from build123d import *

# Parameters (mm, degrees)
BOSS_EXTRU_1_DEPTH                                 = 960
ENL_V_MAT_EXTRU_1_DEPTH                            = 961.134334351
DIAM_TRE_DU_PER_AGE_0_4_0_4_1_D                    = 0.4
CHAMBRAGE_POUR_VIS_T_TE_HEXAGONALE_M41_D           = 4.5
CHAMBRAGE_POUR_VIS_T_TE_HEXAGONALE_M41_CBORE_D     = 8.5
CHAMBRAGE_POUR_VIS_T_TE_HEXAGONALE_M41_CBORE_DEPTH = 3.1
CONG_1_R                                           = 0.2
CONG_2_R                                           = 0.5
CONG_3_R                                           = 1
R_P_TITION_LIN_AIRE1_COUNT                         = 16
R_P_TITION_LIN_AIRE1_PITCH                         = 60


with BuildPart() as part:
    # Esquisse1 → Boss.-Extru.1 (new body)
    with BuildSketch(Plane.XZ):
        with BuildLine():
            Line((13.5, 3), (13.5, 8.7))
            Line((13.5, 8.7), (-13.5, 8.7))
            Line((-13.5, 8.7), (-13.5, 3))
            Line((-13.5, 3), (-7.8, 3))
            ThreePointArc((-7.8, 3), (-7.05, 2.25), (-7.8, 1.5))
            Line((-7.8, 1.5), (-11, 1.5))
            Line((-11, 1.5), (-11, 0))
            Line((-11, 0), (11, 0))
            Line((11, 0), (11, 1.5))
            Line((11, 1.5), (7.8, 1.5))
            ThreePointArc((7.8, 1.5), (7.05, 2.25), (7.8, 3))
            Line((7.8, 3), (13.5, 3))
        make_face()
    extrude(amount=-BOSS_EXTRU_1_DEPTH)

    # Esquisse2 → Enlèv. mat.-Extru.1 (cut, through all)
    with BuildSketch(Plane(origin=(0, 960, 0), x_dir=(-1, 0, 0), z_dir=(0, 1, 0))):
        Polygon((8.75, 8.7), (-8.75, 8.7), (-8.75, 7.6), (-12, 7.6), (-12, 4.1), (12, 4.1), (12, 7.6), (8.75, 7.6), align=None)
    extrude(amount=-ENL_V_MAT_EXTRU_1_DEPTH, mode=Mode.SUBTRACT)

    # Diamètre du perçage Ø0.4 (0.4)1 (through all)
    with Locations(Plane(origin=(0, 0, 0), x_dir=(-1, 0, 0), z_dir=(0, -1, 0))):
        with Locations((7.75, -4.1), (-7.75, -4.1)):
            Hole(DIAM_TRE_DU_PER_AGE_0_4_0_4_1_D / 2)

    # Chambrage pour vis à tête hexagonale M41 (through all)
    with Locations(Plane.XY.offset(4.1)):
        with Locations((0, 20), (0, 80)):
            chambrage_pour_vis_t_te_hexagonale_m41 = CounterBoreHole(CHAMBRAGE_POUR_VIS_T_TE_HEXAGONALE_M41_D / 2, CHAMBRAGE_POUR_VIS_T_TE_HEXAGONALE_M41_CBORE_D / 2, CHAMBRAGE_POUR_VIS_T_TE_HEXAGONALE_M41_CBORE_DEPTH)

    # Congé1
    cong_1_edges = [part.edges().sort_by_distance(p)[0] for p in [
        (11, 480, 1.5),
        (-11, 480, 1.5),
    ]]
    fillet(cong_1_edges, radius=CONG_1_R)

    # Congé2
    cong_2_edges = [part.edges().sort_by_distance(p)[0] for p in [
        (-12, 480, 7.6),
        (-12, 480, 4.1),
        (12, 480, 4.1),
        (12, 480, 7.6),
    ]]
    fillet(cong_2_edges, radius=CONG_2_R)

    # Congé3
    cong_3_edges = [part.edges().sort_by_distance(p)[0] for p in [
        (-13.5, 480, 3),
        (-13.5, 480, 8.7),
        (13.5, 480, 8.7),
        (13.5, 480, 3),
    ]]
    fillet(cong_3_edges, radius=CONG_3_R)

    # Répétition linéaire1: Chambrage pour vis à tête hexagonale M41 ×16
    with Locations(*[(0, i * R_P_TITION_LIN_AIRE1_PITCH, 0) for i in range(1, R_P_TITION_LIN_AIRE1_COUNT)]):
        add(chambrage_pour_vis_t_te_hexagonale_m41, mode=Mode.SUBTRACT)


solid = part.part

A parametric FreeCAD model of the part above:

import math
import FreeCAD as App
import Part
import Sketcher

V = App.Vector


def edges_at(feature, points):
    """Names of the edges that pass closest to the given points."""
    edges = feature.Shape.Edges
    near = lambda p: min(range(len(edges)), key=lambda i: edges[i].distToShape(Part.Vertex(*p))[0])
    return sorted({f"Edge{near(p) + 1}" for p in points})


def add_polygon(sketch, points):
    """Adds a closed chain of lines whose ends are joined by coincident constraints."""
    first, n = sketch.GeometryCount, len(points)
    for a, b in zip(points, points[1:] + points[:1]):
        sketch.addGeometry(Part.LineSegment(App.Vector(*a, 0), App.Vector(*b, 0)), False)
    for i in range(n):
        sketch.addConstraint(Sketcher.Constraint("Coincident", first + i, 2, first + (i + 1) % n, 1))

doc = App.newDocument("Part")
body = doc.addObject("PartDesign::Body", "Body")

sketch1 = doc.addObject("Sketcher::SketchObject", "Sketch")
body.addObject(sketch1)
sketch1.AttachmentSupport = (doc.XZ_Plane, [""])
sketch1.MapMode = "FlatFace"
sketch1.addGeometry([
    Part.LineSegment(V(13.5, 3, 0), V(13.5, 8.7, 0)),
    Part.LineSegment(V(13.5, 8.7, 0), V(-13.5, 8.7, 0)),
    Part.LineSegment(V(-13.5, 8.7, 0), V(-13.5, 3, 0)),
    Part.LineSegment(V(-13.5, 3, 0), V(-7.8, 3, 0)),
    Part.ArcOfCircle(Part.Circle(V(-7.8, 2.2, 0), V(0, 0, 1), 0.8), math.radians(-90), math.radians(90)),
    Part.LineSegment(V(-7.8, 1.5, 0), V(-11, 1.5, 0)),
    Part.LineSegment(V(-11, 1.5, 0), V(-11, 0, 0)),
    Part.LineSegment(V(-11, 0, 0), V(11, 0, 0)),
    Part.LineSegment(V(11, 0, 0), V(11, 1.5, 0)),
    Part.LineSegment(V(11, 1.5, 0), V(7.8, 1.5, 0)),
    Part.ArcOfCircle(Part.Circle(V(7.8, 2.2, 0), V(0, 0, 1), 0.8), math.radians(90), math.radians(270)),
    Part.LineSegment(V(7.8, 3, 0), V(13.5, 3, 0)),
], False)
sketch1.addConstraint([
    Sketcher.Constraint("Coincident", 0, 2, 1, 1),
    Sketcher.Constraint("Coincident", 1, 2, 2, 1),
    Sketcher.Constraint("Coincident", 2, 2, 3, 1),
    Sketcher.Constraint("Tangent", 3, 2, 4, 2),
    Sketcher.Constraint("Tangent", 4, 1, 5, 1),
    Sketcher.Constraint("Coincident", 5, 2, 6, 1),
    Sketcher.Constraint("Coincident", 6, 2, 7, 1),
    Sketcher.Constraint("Coincident", 7, 2, 8, 1),
    Sketcher.Constraint("Coincident", 8, 2, 9, 1),
    Sketcher.Constraint("Tangent", 9, 2, 10, 2),
    Sketcher.Constraint("Tangent", 10, 1, 11, 1),
    Sketcher.Constraint("Coincident", 11, 2, 0, 1),
    Sketcher.Constraint("Vertical", 0),
    Sketcher.Constraint("Horizontal", 1),
    Sketcher.Constraint("Vertical", 2),
    Sketcher.Constraint("Horizontal", 3),
    Sketcher.Constraint("Horizontal", 5),
    Sketcher.Constraint("Vertical", 6),
    Sketcher.Constraint("Horizontal", 7),
    Sketcher.Constraint("Vertical", 8),
    Sketcher.Constraint("Horizontal", 9),
    Sketcher.Constraint("Horizontal", 11),
    Sketcher.Constraint("Equal", 4, 10),
    Sketcher.Constraint("Symmetric", 6, 2, 7, 2, -1, 1),
    Sketcher.Constraint("Symmetric", 4, 3, 10, 3, -2),
    Sketcher.Constraint("Equal", 3, 11),
    Sketcher.Constraint("Equal", 11, 0),
    Sketcher.Constraint("DistanceX", 1, 2, 1, 1, 27.0),
    Sketcher.Constraint("DistanceX", 7, 1, 7, 2, 22.0),
    Sketcher.Constraint("Radius", 4, 0.75),
    Sketcher.Constraint("DistanceX", 3, 1, 3, 2, 5.7),
    Sketcher.Constraint("DistanceY", 6, 2, 6, 1, 1.5),
])
pad1 = doc.addObject("PartDesign::Pad", "Pad")
body.addObject(pad1)
pad1.Profile = sketch1
pad1.Length = 960
pad1.Reversed = True

sketch2 = doc.addObject("Sketcher::SketchObject", "Sketch001")
body.addObject(sketch2)
sketch2.AttachmentSupport = (doc.XZ_Plane, [""])
sketch2.MapMode = "FlatFace"
sketch2.AttachmentOffset = App.Placement(V(0, 0, -960), App.Rotation())
add_polygon(sketch2, [(-8.8, 8.7), (8.8, 8.7), (8.8, 7.6), (12, 7.6), (12, 4.1), (-12, 4.1), (-12, 7.6), (-8.8, 7.6)])
sketch2.addConstraint([
    Sketcher.Constraint("Horizontal", 0),
    Sketcher.Constraint("Vertical", 1),
    Sketcher.Constraint("Horizontal", 2),
    Sketcher.Constraint("Vertical", 3),
    Sketcher.Constraint("Horizontal", 4),
    Sketcher.Constraint("Vertical", 5),
    Sketcher.Constraint("Horizontal", 6),
    Sketcher.Constraint("Vertical", 7),
    Sketcher.Constraint("Symmetric", 2, 2, 5, 2, -2),
    Sketcher.Constraint("Equal", 2, 6),
    Sketcher.Constraint("DistanceX", 4, 2, 4, 1, 24.0),
    Sketcher.Constraint("DistanceX", 0, 1, 0, 2, 17.5),
    Sketcher.Constraint("DistanceY", 1, 2, 1, 1, 1.1),
    Sketcher.Constraint("DistanceY", 3, 2, 3, 1, 3.5),
    Sketcher.Constraint("DistanceY", -1, 1, 0, 2, 8.7),
])
pocket1 = doc.addObject("PartDesign::Pocket", "Pocket")
body.addObject(pocket1)
pocket1.Profile = sketch2
pocket1.Type = "ThroughAll"
pocket1.Reversed = True

sketch3 = doc.addObject("Sketcher::SketchObject", "Sketch002")
body.addObject(sketch3)
sketch3.AttachmentSupport = (doc.XZ_Plane, [""])
sketch3.MapMode = "FlatFace"
sketch3.addGeometry([
    Part.Circle(V(-7.75, 4.1, 0), V(0, 0, 1), 0.2),
    Part.Circle(V(7.75, 4.1, 0), V(0, 0, 1), 0.2),
], False)
sketch3.addConstraint([
    Sketcher.Constraint("Equal", 0, 1),
    Sketcher.Constraint("Symmetric", 0, 3, 1, 3, -2),
    Sketcher.Constraint("Diameter", 0, 0.4),
    Sketcher.Constraint("DistanceY", -1, 1, 0, 3, 4.1),
    Sketcher.Constraint("DistanceX", 0, 3, 1, 3, 15.5),
])
doc.recompute()
hole = doc.addObject("PartDesign::Hole", "Hole")
body.addObject(hole)
hole.Profile = sketch3
hole.ThreadType = "None"
hole.Diameter = 0.4
hole.DepthType = "ThroughAll"

sketch4 = doc.addObject("Sketcher::SketchObject", "Sketch003")
body.addObject(sketch4)
sketch4.AttachmentSupport = (doc.XY_Plane, [""])
sketch4.MapMode = "FlatFace"
sketch4.AttachmentOffset = App.Placement(V(0, 0, 4.1), App.Rotation())
sketch4.addGeometry([
    Part.Circle(V(0, 20, 0), V(0, 0, 1), 2.2),
    Part.Circle(V(0, 80, 0), V(0, 0, 1), 2.2),
], False)
sketch4.addConstraint([
    Sketcher.Constraint("Equal", 0, 1),
    Sketcher.Constraint("PointOnObject", 0, 3, -2),
    Sketcher.Constraint("PointOnObject", 1, 3, -2),
    Sketcher.Constraint("Diameter", 0, 4.5),
    Sketcher.Constraint("DistanceY", -1, 1, 0, 3, 20.0),
    Sketcher.Constraint("DistanceY", -1, 1, 1, 3, 80.0),
])
doc.recompute()
hole2 = doc.addObject("PartDesign::Hole", "Hole001")
body.addObject(hole2)
hole2.Profile = sketch4
hole2.ThreadType = "None"
hole2.Diameter = 4.5
hole2.DepthType = "ThroughAll"
hole2.HoleCutType = "Counterbore"
hole2.HoleCutDiameter = 8.5
hole2.HoleCutDepth = 3.1
doc.recompute()

fillet = doc.addObject("PartDesign::Fillet", "Fillet")
body.addObject(fillet)
fillet.Base = (hole2, edges_at(hole2, [(11, 480, 1.5), (-11, 480, 1.5)]))
fillet.Radius = 0.2
doc.recompute()

fillet2 = doc.addObject("PartDesign::Fillet", "Fillet001")
body.addObject(fillet2)
fillet2.Base = (fillet, edges_at(fillet, [
    (-12, 480, 7.6),
    (-12, 480, 4.1),
    (12, 480, 4.1),
    (12, 480, 7.6),
]))
fillet2.Radius = 0.5
doc.recompute()

fillet3 = doc.addObject("PartDesign::Fillet", "Fillet002")
body.addObject(fillet3)
fillet3.Base = (fillet2, edges_at(fillet2, [
    (-13.5, 480, 3),
    (-13.5, 480, 8.7),
    (13.5, 480, 8.7),
    (13.5, 480, 3),
]))
fillet3.Radius = 1
doc.recompute()

linearpattern = doc.addObject("PartDesign::LinearPattern", "LinearPattern")
body.addObject(linearpattern)
linearpattern.Originals = [hole2]
linearpattern.Direction = (doc.Y_Axis, [""])
linearpattern.Mode = "offset"
linearpattern.Offset = 60
linearpattern.Occurrences = 16
body.Tip = linearpattern

doc.recompute()
